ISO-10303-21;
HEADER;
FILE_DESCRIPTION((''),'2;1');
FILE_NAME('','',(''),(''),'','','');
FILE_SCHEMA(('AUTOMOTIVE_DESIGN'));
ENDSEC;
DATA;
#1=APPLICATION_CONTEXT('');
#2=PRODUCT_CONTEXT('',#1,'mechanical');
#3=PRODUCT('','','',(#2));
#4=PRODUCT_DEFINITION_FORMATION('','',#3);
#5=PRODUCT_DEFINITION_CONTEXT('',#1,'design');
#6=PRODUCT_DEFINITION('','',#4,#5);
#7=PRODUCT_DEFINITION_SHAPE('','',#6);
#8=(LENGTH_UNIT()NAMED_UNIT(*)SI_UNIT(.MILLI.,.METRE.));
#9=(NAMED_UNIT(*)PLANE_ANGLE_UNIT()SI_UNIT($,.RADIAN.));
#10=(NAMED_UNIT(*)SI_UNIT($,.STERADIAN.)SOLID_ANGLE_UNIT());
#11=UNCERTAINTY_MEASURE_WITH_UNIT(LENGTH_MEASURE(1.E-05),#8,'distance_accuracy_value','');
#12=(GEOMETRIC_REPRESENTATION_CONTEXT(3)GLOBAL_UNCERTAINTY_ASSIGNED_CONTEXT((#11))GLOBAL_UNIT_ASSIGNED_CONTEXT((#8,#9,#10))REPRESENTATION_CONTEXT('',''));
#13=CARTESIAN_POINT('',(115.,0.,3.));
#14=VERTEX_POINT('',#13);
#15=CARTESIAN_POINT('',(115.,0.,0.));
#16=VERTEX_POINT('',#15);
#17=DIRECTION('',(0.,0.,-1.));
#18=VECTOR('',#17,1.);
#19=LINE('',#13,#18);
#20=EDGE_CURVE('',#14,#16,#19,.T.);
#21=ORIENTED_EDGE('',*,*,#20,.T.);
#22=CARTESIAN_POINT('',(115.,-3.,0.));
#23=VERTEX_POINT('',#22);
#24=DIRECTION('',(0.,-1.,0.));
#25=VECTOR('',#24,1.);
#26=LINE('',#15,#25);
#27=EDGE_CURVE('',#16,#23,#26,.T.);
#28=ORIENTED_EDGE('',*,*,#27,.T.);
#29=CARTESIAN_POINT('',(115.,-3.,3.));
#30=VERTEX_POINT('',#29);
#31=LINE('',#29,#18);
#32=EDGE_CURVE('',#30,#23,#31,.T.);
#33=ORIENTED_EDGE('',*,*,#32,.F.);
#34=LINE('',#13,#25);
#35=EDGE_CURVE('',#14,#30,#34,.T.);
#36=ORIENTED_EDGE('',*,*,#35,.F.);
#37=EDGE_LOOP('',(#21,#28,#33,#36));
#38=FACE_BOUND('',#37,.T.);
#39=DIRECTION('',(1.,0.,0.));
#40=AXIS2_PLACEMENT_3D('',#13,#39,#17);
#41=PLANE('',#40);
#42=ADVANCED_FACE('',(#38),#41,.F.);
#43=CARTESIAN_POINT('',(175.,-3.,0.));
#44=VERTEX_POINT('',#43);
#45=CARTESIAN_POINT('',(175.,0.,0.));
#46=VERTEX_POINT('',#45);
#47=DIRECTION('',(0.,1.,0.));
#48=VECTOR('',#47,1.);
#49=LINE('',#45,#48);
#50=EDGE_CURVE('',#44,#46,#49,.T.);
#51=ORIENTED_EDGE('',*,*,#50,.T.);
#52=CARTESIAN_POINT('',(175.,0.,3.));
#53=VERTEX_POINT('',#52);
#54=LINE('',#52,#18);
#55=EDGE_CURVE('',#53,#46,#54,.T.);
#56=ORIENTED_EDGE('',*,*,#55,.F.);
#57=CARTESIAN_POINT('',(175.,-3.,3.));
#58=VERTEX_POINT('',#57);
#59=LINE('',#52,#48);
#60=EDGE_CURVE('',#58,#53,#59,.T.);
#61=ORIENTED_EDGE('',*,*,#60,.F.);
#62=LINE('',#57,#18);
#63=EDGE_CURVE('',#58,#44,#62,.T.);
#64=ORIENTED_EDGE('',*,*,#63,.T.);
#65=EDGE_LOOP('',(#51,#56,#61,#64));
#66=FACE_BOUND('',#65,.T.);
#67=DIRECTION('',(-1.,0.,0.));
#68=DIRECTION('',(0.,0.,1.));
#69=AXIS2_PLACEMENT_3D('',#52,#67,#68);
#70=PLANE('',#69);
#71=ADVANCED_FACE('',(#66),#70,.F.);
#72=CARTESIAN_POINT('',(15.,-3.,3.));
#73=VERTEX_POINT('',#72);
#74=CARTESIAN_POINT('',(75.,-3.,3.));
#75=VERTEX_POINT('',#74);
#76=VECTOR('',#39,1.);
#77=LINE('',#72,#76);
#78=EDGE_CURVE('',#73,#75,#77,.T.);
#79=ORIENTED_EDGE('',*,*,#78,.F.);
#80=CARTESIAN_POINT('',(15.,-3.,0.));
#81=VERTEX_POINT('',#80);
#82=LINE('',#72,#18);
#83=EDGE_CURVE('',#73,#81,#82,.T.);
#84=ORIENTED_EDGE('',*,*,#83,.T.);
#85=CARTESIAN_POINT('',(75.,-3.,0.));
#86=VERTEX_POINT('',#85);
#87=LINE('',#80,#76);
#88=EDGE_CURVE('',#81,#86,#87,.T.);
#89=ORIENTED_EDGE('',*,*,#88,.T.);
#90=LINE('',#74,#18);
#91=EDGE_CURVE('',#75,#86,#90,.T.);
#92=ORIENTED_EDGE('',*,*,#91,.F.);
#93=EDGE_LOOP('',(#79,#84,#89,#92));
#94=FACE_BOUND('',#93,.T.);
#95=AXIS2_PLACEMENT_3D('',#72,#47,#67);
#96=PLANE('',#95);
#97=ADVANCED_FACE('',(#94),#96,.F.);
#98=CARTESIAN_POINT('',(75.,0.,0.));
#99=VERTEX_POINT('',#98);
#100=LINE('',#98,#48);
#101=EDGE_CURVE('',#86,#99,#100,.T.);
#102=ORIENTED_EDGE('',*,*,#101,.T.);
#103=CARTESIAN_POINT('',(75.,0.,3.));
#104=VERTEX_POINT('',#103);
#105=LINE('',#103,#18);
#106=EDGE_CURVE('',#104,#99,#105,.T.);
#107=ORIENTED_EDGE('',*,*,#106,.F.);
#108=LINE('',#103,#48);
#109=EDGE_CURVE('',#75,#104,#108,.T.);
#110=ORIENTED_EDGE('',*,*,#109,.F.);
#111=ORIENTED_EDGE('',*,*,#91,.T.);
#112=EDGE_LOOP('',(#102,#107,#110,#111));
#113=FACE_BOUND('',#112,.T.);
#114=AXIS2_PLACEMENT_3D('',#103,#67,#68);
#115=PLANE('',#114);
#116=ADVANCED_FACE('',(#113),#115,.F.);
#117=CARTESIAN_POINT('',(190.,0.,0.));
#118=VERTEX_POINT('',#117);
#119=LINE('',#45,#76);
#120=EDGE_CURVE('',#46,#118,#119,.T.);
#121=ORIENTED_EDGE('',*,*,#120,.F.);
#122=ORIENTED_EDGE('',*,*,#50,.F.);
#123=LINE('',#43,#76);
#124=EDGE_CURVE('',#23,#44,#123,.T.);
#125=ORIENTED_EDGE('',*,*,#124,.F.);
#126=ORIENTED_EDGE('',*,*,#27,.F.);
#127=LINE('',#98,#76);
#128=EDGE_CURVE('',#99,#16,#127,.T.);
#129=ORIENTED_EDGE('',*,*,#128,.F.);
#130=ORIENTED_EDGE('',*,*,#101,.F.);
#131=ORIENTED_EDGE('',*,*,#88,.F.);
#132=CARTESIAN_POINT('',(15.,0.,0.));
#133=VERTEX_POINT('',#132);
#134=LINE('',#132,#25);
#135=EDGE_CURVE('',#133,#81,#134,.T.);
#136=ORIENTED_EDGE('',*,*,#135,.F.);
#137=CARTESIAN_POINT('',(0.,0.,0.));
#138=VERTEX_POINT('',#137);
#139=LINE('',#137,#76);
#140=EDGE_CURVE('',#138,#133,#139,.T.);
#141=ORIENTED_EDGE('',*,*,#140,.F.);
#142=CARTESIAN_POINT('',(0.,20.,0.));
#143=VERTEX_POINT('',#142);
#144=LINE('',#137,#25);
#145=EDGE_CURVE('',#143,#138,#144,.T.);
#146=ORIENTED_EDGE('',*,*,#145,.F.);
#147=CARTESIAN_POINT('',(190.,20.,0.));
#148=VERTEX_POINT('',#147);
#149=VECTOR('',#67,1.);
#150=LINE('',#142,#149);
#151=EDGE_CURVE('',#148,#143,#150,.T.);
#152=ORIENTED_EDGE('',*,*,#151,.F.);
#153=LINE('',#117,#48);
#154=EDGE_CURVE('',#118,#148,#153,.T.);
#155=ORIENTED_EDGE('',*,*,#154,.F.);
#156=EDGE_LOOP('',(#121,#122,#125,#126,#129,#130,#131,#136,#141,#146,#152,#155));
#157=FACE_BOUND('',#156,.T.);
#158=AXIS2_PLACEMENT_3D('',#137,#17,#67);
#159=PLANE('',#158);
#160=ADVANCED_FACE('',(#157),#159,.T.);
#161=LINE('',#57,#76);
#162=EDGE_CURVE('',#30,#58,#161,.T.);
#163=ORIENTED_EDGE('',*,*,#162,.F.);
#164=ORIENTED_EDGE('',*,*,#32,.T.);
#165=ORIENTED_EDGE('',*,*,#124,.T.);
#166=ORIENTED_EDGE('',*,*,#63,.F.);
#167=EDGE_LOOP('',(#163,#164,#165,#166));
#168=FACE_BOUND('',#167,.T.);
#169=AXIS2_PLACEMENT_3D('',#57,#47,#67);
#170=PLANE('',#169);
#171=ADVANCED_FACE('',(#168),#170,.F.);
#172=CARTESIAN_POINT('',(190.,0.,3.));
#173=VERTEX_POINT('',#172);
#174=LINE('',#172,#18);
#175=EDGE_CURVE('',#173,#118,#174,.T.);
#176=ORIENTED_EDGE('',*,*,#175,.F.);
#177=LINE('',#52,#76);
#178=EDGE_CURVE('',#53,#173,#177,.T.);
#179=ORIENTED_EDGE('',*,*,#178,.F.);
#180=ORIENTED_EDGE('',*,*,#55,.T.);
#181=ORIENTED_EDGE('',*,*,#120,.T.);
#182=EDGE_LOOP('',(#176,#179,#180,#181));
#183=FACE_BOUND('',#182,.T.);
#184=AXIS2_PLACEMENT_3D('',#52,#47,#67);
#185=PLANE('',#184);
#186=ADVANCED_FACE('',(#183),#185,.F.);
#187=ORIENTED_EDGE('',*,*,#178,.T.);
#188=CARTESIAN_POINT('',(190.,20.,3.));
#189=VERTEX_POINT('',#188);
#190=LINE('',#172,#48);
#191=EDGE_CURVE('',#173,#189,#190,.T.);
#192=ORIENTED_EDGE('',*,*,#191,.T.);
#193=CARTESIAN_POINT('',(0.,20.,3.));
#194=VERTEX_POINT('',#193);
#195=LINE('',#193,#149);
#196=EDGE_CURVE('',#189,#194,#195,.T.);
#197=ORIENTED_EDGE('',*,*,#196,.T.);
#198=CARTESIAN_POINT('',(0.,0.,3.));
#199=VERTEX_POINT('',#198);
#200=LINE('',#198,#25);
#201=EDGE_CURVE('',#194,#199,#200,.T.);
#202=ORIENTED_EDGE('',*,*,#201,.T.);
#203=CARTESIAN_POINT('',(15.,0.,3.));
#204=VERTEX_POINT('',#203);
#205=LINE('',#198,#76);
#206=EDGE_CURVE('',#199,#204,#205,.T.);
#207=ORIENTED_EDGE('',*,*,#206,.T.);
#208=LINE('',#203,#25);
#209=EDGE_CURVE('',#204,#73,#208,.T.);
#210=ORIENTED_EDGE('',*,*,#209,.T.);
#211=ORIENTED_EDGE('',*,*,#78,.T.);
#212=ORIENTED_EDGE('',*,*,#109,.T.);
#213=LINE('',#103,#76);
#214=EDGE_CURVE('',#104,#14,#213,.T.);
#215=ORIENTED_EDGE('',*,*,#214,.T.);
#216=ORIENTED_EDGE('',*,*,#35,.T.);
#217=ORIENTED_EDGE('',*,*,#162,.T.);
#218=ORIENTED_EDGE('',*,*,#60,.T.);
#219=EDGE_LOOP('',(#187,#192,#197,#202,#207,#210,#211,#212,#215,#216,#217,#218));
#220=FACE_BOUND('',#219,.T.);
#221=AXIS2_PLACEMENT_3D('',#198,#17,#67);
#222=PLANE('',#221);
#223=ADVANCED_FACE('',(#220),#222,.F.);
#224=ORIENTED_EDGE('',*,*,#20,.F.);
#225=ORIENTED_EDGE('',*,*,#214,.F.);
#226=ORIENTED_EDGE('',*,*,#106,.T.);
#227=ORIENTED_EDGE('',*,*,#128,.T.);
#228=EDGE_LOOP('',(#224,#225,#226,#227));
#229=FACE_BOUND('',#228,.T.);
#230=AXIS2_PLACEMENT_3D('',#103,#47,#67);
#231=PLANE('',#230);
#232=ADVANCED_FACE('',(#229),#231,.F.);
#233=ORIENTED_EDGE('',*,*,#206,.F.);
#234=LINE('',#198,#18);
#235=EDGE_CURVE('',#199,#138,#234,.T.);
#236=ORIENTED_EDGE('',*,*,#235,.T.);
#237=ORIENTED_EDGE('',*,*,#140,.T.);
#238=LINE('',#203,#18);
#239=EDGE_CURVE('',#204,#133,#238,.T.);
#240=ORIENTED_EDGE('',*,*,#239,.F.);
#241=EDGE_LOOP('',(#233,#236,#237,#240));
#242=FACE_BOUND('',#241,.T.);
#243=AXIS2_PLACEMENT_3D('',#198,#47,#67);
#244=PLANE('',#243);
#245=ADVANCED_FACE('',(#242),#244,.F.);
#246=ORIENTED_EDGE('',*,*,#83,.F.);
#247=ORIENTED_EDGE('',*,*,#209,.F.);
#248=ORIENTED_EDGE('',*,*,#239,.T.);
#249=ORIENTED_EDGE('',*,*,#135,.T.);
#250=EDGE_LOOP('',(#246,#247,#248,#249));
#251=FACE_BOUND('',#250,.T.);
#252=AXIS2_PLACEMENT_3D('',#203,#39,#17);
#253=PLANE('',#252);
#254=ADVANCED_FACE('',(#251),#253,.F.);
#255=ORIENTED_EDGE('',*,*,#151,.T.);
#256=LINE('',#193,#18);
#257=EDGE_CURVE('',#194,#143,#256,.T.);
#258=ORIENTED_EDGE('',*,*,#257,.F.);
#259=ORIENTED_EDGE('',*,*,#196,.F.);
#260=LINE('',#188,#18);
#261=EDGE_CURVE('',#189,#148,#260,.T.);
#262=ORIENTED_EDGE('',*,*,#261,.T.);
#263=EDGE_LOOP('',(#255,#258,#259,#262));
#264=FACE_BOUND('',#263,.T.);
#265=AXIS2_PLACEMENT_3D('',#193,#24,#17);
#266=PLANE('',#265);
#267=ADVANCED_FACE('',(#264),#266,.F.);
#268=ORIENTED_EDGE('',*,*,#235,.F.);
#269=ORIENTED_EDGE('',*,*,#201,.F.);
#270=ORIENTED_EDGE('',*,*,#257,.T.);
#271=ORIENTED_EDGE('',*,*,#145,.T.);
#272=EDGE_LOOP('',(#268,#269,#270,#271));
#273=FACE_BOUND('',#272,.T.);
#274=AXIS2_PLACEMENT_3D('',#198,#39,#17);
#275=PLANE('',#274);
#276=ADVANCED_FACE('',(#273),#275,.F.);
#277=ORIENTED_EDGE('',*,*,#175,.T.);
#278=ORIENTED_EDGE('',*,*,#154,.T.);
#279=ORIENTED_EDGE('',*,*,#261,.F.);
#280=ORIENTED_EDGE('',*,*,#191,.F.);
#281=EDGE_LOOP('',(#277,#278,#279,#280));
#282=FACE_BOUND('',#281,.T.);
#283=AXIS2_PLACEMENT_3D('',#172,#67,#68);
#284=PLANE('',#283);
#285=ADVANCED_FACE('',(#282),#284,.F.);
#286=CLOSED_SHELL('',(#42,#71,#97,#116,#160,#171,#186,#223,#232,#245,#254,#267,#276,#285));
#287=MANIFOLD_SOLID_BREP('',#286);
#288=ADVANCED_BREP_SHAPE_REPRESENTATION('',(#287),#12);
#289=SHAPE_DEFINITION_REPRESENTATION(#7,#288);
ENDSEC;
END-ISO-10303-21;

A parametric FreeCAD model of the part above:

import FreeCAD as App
import Part
import Sketcher

V = App.Vector


def add_polygon(sketch, points):
    """Adds a closed chain of lines whose ends are joined by coincident constraints."""
    first, n = sketch.GeometryCount, len(points)
    for a, b in zip(points, points[1:] + points[:1]):
        sketch.addGeometry(Part.LineSegment(App.Vector(*a, 0), App.Vector(*b, 0)), False)
    for i in range(n):
        sketch.addConstraint(Sketcher.Constraint("Coincident", first + i, 2, first + (i + 1) % n, 1))

doc = App.newDocument("Part")
params = doc.addObject("Spreadsheet::Sheet", "Params")
for row, (alias, value) in enumerate([
    ("sketch1_width", "15 mm"),
    ("sketch1_width2", "190 mm"),
    ("sketch1_width3", "60 mm"),
    ("sketch1_height", "20 mm"),
    ("sketch1_height2", "3 mm"),
    ("pad1_length", "3 mm"),
], start=1):
    params.set(f"A{row}", alias)
    params.set(f"B{row}", "=" + value)
    params.setAlias(f"B{row}", alias)

body = doc.addObject("PartDesign::Body", "Body")

sketch1 = body.newObject("Sketcher::SketchObject", "Sketch")
sketch1.AttachmentSupport = (doc.getObject("XY_Plane"), [""])
sketch1.MapMode = "FlatFace"
add_polygon(sketch1, [(175, 0), (190, 0), (190, 20), (0, 20), (0, 0), (15, 0), (15, -3), (75, -3), (75, 0), (115, 0), (115, -3), (175, -3)])
sketch1.addConstraint(Sketcher.Constraint("Horizontal", 0))
sketch1.addConstraint(Sketcher.Constraint("Vertical", 1))
sketch1.addConstraint(Sketcher.Constraint("Horizontal", 2))
sketch1.addConstraint(Sketcher.Constraint("Vertical", 3))
sketch1.addConstraint(Sketcher.Constraint("Horizontal", 4))
sketch1.addConstraint(Sketcher.Constraint("Vertical", 5))
sketch1.addConstraint(Sketcher.Constraint("Horizontal", 6))
sketch1.addConstraint(Sketcher.Constraint("Vertical", 7))
sketch1.addConstraint(Sketcher.Constraint("Horizontal", 8))
sketch1.addConstraint(Sketcher.Constraint("Vertical", 9))
sketch1.addConstraint(Sketcher.Constraint("Horizontal", 10))
sketch1.addConstraint(Sketcher.Constraint("Vertical", 11))
sketch1.addConstraint(Sketcher.Constraint("Coincident", 3, 2, -1, 1))
sketch1.addConstraint(Sketcher.Constraint("PointOnObject", 0, 2, -1))
sketch1.addConstraint(Sketcher.Constraint("PointOnObject", 7, 2, -1))
sketch1.addConstraint(Sketcher.Constraint("Horizontal", 6, 2, 9, 2))
sketch1.addConstraint(Sketcher.Constraint("Equal", 0, 4))
sketch1.addConstraint(Sketcher.Constraint("Equal", 6, 10))
sketch1.addConstraint(Sketcher.Constraint("DistanceX", 0, 1, 0, 2, 15.0))
sketch1.addConstraint(Sketcher.Constraint("DistanceX", 2, 2, 2, 1, 190.0))
sketch1.addConstraint(Sketcher.Constraint("DistanceX", 6, 1, 6, 2, 60.0))
sketch1.addConstraint(Sketcher.Constraint("DistanceY", 1, 1, 1, 2, 20.0))
sketch1.addConstraint(Sketcher.Constraint("DistanceY", 5, 2, 5, 1, 3.0))
sketch1.setExpression("Constraints[30]", "Params.sketch1_width")
sketch1.setExpression("Constraints[31]", "Params.sketch1_width2")
sketch1.setExpression("Constraints[32]", "Params.sketch1_width3")
sketch1.setExpression("Constraints[33]", "Params.sketch1_height")
sketch1.setExpression("Constraints[34]", "Params.sketch1_height2")
pad1 = body.newObject("PartDesign::Pad", "Pad")
pad1.Profile = sketch1
pad1.setExpression("Length", "Params.pad1_length")

doc.recompute()
